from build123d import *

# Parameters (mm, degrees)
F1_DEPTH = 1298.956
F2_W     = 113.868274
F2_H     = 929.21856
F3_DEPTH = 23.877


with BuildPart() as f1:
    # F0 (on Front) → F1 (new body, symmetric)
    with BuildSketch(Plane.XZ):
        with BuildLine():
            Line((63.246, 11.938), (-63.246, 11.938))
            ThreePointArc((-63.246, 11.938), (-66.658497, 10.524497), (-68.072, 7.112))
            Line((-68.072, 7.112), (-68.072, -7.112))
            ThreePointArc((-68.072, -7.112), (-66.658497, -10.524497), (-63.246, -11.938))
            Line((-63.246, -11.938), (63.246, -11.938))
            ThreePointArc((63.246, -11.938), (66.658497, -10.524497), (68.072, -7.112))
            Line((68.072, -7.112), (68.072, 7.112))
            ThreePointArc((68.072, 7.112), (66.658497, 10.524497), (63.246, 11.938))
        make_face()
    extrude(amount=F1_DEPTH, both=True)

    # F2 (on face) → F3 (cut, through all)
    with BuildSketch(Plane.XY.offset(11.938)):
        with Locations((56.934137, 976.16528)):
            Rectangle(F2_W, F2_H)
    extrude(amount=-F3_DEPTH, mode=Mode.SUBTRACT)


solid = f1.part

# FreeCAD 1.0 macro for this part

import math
import FreeCAD as App
import Part
import Sketcher

V = App.Vector
Q = App.Units.Quantity

doc = App.newDocument("Part")
params = doc.addObject("Spreadsheet::Sheet", "Params")
for row, (alias, value) in enumerate([
    ("sketch1_radius", "0.19 in"),
    ("sketch1_width", "4.98 in"),
    ("sketch1_height", "0.56 in"),
    ("pad1_length", "102.28 in"),
], start=1):
    params.set(f"A{row}", alias)
    params.set(f"B{row}", "=" + value)
    params.setAlias(f"B{row}", alias)

body = doc.addObject("PartDesign::Body", "Body")

# Sketch on XZ plane
sketch1 = body.newObject("Sketcher::SketchObject", "Sketch")
sketch1.AttachmentSupport = (doc.getObject("XZ_Plane"), [""])
sketch1.MapMode = "FlatFace"
sketch1.addGeometry(Part.LineSegment(V(63.246, 11.938, 0), V(-63.246, 11.938, 0)), False)
sketch1.addGeometry(Part.ArcOfCircle(Part.Circle(V(-63.245999, 7.111999, 0), V(0, 0, 1), 4.826001), math.radians(90.000013), math.radians(179.999987)), False)
sketch1.addGeometry(Part.LineSegment(V(-68.072, 7.112, 0), V(-68.072, -7.112, 0)), False)
sketch1.addGeometry(Part.ArcOfCircle(Part.Circle(V(-63.245999, -7.111999, 0), V(0, 0, 1), 4.826001), math.radians(-179.999987), math.radians(-90.000013)), False)
sketch1.addGeometry(Part.LineSegment(V(-63.246, -11.938, 0), V(63.246, -11.938, 0)), False)
sketch1.addGeometry(Part.ArcOfCircle(Part.Circle(V(63.245999, -7.111999, 0), V(0, 0, 1), 4.826001), math.radians(-89.999987), math.radians(-0.000013)), False)
sketch1.addGeometry(Part.LineSegment(V(68.072, -7.112, 0), V(68.072, 7.112, 0)), False)
sketch1.addGeometry(Part.ArcOfCircle(Part.Circle(V(63.245999, 7.111999, 0), V(0, 0, 1), 4.826001), math.radians(0.000013), math.radians(89.999987)), False)
sketch1.addConstraint(Sketcher.Constraint("Tangent", 0, 2, 1, 1))
sketch1.addConstraint(Sketcher.Constraint("Tangent", 1, 2, 2, 1))
sketch1.addConstraint(Sketcher.Constraint("Tangent", 2, 2, 3, 1))
sketch1.addConstraint(Sketcher.Constraint("Tangent", 3, 2, 4, 1))
sketch1.addConstraint(Sketcher.Constraint("Tangent", 4, 2, 5, 1))
sketch1.addConstraint(Sketcher.Constraint("Tangent", 5, 2, 6, 1))
sketch1.addConstraint(Sketcher.Constraint("Tangent", 6, 2, 7, 1))
sketch1.addConstraint(Sketcher.Constraint("Tangent", 7, 2, 0, 1))
sketch1.addConstraint(Sketcher.Constraint("Horizontal", 0))
sketch1.addConstraint(Sketcher.Constraint("Vertical", 2))
sketch1.addConstraint(Sketcher.Constraint("Horizontal", 4))
sketch1.addConstraint(Sketcher.Constraint("Vertical", 6))
sketch1.addConstraint(Sketcher.Constraint("Equal", 1, 3))
sketch1.addConstraint(Sketcher.Constraint("Equal", 3, 5))
sketch1.addConstraint(Sketcher.Constraint("Equal", 5, 7))
sketch1.addConstraint(Sketcher.Constraint("Symmetric", 1, 3, 5, 3, -1, 1))
sketch1.addConstraint(Sketcher.Constraint("Radius", 1, Q("0.19 in")))
sketch1.addConstraint(Sketcher.Constraint("DistanceX", 0, 2, 0, 1, Q("4.98 in")))
sketch1.addConstraint(Sketcher.Constraint("DistanceY", 2, 2, 2, 1, Q("0.56 in")))
sketch1.setExpression("Constraints[16]", "Params.sketch1_radius")
sketch1.setExpression("Constraints[17]", "Params.sketch1_width")
sketch1.setExpression("Constraints[18]", "Params.sketch1_height")
pad1 = body.newObject("PartDesign::Pad", "Pad")
pad1.Profile = sketch1
pad1.setExpression("Length", "Params.pad1_length")
pad1.Midplane = True

# Sketch on XY plane
sketch2 = body.newObject("Sketcher::SketchObject", "Sketch001")
sketch2.AttachmentSupport = (doc.getObject("XY_Plane"), [""])
sketch2.MapMode = "FlatFace"
sketch2.AttachmentOffset = App.Placement(V(0, 0, 0.47 * 25.4), App.Rotation())
sketch2.addGeometry(Part.LineSegment(V(0, 1440.77456, 0), V(0, 511.556, 0)), False)
sketch2.addGeometry(Part.LineSegment(V(0, 511.556, 0), V(113.868274, 511.556, 0)), False)
sketch2.addGeometry(Part.LineSegment(V(113.868274, 511.556, 0), V(113.868274, 1440.77456, 0)), False)
sketch2.addGeometry(Part.LineSegment(V(113.868274, 1440.77456, 0), V(0, 1440.77456, 0)), False)
sketch2.addConstraint(Sketcher.Constraint("Coincident", 0, 2, 1, 1))
sketch2.addConstraint(Sketcher.Constraint("Coincident", 1, 2, 2, 1))
sketch2.addConstraint(Sketcher.Constraint("Coincident", 2, 2, 3, 1))
sketch2.addConstraint(Sketcher.Constraint("Coincident", 3, 2, 0, 1))
sketch2.addConstraint(Sketcher.Constraint("Vertical", 0))
sketch2.addConstraint(Sketcher.Constraint("Horizontal", 1))
sketch2.addConstraint(Sketcher.Constraint("Vertical", 2))
sketch2.addConstraint(Sketcher.Constraint("Horizontal", 3))
sketch2.addConstraint(Sketcher.Constraint("PointOnObject", 0, 2, -2))
sketch2.addConstraint(Sketcher.Constraint("DistanceY", -1, 1, 0, 2, Q("20.14 in")))
sketch2.addConstraint(Sketcher.Constraint("DistanceY", 0, 2, 0, 1, 929.21856))
sketch2.addConstraint(Sketcher.Constraint("DistanceX", 1, 1, 1, 2, 113.868274))
pocket1 = body.newObject("PartDesign::Pocket", "Pocket")
pocket1.Profile = sketch2
pocket1.Type = "ThroughAll"

doc.recompute()
